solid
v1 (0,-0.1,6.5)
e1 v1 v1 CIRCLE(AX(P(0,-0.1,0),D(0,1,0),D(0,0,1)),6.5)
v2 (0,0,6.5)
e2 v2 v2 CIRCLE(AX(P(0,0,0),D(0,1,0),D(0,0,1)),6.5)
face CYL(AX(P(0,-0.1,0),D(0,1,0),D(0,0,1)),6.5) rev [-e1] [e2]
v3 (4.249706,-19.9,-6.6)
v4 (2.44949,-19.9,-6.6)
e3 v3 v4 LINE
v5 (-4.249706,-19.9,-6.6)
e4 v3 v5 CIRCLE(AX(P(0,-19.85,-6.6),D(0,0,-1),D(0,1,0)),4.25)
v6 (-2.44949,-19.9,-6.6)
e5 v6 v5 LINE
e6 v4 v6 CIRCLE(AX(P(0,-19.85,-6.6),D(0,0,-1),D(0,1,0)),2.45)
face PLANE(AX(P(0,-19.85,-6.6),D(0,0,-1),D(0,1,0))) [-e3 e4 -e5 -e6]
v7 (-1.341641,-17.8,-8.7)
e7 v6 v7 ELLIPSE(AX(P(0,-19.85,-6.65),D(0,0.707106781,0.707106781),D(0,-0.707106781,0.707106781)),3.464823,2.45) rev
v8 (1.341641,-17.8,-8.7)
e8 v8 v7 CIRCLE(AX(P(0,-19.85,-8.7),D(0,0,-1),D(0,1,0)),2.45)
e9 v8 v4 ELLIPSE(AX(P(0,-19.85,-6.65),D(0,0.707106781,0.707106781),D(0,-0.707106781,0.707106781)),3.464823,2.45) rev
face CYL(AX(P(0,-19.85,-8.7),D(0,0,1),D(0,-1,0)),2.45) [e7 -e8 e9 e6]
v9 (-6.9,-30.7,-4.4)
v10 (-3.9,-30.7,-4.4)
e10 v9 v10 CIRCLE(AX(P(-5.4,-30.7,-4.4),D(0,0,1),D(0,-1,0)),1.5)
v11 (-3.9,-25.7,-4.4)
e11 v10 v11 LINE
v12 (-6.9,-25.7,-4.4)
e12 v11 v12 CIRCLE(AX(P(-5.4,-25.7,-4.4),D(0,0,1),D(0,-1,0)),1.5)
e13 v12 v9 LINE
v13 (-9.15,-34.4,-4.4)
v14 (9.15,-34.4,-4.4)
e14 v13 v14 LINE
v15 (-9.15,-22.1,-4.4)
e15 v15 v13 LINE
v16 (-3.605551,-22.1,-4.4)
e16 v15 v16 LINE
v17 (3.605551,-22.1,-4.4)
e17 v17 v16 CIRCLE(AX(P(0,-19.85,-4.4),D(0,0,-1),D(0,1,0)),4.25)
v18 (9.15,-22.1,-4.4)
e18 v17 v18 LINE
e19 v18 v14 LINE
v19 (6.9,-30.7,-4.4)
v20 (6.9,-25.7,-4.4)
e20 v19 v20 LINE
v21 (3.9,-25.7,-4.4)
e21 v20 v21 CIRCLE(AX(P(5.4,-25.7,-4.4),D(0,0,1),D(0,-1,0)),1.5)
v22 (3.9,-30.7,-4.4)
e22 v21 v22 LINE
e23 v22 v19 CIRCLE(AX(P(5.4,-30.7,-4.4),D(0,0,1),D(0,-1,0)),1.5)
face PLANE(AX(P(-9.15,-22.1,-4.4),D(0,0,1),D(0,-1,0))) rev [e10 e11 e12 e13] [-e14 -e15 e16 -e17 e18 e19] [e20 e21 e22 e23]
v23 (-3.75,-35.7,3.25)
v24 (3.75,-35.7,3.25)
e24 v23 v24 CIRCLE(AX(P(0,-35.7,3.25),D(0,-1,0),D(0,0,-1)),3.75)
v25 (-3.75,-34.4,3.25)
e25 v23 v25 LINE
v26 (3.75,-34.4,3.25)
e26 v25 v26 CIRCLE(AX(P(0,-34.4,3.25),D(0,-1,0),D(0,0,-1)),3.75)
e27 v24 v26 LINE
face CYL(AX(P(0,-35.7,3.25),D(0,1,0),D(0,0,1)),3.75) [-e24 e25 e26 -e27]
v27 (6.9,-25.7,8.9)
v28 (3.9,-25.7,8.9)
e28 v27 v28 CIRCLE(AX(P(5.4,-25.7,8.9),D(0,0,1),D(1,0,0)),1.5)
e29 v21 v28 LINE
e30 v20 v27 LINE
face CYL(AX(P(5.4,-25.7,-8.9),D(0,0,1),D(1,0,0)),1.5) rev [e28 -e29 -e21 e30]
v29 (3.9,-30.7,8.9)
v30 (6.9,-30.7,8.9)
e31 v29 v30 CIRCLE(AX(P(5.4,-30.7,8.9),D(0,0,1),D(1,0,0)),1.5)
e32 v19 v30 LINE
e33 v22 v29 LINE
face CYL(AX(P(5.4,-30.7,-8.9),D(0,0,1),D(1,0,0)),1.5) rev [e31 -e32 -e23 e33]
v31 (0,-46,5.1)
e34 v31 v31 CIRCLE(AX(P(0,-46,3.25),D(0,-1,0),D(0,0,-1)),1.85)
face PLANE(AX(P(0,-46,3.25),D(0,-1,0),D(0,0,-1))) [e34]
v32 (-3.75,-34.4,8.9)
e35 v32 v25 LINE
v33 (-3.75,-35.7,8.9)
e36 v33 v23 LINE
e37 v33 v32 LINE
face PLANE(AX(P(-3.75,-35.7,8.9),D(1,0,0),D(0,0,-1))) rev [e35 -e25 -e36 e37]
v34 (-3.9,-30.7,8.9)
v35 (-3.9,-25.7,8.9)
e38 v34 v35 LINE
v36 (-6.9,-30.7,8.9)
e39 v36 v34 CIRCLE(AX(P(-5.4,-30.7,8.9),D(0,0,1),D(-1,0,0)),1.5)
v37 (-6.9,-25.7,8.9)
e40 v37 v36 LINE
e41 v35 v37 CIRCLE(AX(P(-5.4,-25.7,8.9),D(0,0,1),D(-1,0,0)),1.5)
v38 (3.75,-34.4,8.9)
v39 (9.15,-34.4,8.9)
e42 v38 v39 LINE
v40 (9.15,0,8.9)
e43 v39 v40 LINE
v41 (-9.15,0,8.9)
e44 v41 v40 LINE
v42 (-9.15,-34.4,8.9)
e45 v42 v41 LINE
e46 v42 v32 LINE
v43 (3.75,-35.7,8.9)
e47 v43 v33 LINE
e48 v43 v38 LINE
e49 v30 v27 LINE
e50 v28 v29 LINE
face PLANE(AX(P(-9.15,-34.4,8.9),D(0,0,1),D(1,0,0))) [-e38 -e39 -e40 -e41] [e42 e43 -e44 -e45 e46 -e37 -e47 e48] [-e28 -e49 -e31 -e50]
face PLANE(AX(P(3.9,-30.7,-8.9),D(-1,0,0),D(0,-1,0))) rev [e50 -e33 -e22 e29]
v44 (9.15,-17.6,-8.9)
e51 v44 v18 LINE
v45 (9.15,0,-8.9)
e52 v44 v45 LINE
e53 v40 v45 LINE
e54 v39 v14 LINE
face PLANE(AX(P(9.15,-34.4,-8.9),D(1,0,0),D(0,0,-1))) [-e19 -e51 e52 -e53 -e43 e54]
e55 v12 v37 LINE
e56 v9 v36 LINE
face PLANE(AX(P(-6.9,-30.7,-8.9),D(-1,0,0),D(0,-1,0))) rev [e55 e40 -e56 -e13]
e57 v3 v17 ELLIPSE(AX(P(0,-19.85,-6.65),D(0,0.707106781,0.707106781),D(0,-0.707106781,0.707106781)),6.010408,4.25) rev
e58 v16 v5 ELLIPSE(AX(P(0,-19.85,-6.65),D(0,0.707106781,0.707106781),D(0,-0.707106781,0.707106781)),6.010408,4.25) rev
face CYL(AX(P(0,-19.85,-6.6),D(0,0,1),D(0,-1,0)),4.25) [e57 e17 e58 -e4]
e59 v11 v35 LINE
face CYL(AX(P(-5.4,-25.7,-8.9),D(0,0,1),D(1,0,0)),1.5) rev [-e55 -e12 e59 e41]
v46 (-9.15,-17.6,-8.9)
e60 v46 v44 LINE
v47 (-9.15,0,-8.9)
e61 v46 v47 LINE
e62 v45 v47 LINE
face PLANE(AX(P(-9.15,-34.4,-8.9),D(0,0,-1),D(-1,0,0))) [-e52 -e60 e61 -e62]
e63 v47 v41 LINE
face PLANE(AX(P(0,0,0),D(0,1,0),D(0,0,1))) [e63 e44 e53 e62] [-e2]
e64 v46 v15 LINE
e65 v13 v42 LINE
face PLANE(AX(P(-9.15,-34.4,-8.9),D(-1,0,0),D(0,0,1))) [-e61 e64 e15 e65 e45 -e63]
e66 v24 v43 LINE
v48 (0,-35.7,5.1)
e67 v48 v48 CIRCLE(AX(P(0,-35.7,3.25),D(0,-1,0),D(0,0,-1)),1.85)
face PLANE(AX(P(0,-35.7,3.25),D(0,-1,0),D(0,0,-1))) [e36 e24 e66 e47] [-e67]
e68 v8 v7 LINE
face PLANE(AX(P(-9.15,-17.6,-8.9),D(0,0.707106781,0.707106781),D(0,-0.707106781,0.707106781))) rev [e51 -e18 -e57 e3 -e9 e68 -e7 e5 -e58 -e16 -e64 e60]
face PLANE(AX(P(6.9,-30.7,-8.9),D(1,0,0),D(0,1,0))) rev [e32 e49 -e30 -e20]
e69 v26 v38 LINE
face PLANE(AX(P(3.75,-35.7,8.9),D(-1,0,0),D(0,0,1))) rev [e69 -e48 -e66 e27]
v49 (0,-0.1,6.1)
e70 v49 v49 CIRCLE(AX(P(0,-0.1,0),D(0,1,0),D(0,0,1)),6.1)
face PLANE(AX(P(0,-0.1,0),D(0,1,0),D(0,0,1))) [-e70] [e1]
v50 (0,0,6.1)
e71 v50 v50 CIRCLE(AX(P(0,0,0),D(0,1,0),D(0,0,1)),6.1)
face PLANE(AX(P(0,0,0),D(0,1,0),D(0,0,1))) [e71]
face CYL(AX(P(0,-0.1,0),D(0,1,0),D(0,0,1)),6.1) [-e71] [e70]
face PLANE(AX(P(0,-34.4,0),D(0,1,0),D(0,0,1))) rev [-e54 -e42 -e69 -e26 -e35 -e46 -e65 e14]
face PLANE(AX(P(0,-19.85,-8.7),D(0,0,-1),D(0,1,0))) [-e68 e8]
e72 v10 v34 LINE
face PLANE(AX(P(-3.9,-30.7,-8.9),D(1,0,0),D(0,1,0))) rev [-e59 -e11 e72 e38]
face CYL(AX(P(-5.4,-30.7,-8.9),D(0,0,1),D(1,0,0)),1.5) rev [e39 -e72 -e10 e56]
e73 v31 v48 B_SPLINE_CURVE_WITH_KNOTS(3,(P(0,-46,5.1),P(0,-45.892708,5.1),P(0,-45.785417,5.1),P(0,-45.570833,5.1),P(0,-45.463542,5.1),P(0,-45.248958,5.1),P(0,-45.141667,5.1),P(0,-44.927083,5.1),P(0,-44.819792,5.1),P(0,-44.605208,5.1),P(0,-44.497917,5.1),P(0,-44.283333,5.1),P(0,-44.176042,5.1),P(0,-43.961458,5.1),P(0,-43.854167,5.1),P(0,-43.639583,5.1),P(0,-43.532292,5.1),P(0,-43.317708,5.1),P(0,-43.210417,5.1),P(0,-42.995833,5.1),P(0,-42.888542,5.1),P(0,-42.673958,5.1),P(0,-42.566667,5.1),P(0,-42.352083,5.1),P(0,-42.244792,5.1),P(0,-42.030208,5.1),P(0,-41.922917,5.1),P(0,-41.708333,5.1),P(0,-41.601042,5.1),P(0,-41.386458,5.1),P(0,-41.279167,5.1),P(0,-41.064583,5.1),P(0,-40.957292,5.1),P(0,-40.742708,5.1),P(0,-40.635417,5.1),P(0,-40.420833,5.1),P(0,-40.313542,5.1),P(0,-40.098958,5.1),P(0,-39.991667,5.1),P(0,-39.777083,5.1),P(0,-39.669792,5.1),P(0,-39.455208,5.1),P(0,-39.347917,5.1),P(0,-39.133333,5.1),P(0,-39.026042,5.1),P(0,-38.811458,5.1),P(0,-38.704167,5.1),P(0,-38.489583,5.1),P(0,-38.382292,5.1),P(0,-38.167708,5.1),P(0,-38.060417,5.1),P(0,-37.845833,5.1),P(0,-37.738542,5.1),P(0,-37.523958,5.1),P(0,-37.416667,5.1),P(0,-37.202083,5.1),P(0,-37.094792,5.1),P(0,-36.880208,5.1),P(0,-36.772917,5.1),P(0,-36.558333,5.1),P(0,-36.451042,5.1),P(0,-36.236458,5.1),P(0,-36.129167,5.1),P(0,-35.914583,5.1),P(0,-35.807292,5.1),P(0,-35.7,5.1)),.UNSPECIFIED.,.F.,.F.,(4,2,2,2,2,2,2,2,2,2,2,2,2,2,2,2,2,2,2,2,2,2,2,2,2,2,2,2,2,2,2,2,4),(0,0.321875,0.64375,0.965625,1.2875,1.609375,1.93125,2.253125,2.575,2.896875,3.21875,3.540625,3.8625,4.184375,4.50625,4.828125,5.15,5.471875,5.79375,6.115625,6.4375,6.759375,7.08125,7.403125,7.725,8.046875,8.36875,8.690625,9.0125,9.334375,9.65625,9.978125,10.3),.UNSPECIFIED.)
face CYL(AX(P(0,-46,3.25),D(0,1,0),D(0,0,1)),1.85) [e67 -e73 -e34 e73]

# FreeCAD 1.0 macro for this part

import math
import FreeCAD as App
import Part
import Sketcher
Q = App.Units.Quantity


def add_polygon(sketch, points):
    """Adds a closed chain of lines whose ends are joined by coincident constraints."""
    first, n = sketch.GeometryCount, len(points)
    for a, b in zip(points, points[1:] + points[:1]):
        sketch.addGeometry(Part.LineSegment(App.Vector(*a, 0), App.Vector(*b, 0)), False)
    for i in range(n):
        sketch.addConstraint(Sketcher.Constraint("Coincident", first + i, 2, first + (i + 1) % n, 1))

doc = App.newDocument("Part")
body = doc.addObject("PartDesign::Body", "Body")

# Sketch on XZ plane
sketch1 = body.newObject("Sketcher::SketchObject", "Sketch")
sketch1.AttachmentSupport = (doc.getObject("XZ_Plane"), [""])
sketch1.MapMode = "FlatFace"
add_polygon(sketch1, [(-9, -9), (-9, 9), (9, 9), (9, -9)])  # lines 0-3
sketch1.addConstraint([
    Sketcher.Constraint("Vertical", 0),
    Sketcher.Constraint("Horizontal", 1),
    Sketcher.Constraint("Vertical", 2),
    Sketcher.Constraint("Horizontal", 3),
    Sketcher.Constraint("Symmetric", 0, 2, 2, 2, -1, 1),
    Sketcher.Constraint("DistanceX", 1, 1, 1, 2, 18.3),
    Sketcher.Constraint("DistanceY", 0, 1, 0, 2, 17.8),
])
pad1 = body.newObject("PartDesign::Pad", "Pad")
pad1.Profile = sketch1
pad1.Length = 34.4

# Sketch on YZ plane
sketch2 = body.newObject("Sketcher::SketchObject", "Sketch001")
sketch2.AttachmentSupport = (doc.getObject("YZ_Plane"), [""])
sketch2.MapMode = "FlatFace"
add_polygon(sketch2, [(-17.6, -8.9), (-22.1, -4.4), (-34.4, -4.4), (-34.4, -8.9)])  # lines 0-3
sketch2.addConstraint([
    Sketcher.Constraint("Horizontal", 1),
    Sketcher.Constraint("Vertical", 2),
    Sketcher.Constraint("Horizontal", 3),
    Sketcher.Constraint("Angle", 0, Q("135 deg")),
    Sketcher.Constraint("DistanceX", 1, 2, 1, 1, 12.3),
    Sketcher.Constraint("DistanceX", 3, 1, 3, 2, 16.8),
    Sketcher.Constraint("DistanceX", 0, 2, -1, 1, 22.1),
    Sketcher.Constraint("DistanceY", 0, 2, -1, 1, 4.4),
])
pocket1 = body.newObject("PartDesign::Pocket", "Pocket")
pocket1.Profile = sketch2
pocket1.Type = "ThroughAll"
pocket1.Midplane = True

# Sketch on XY plane
sketch3 = body.newObject("Sketcher::SketchObject", "Sketch002")
sketch3.AttachmentSupport = (doc.getObject("XY_Plane"), [""])
sketch3.MapMode = "FlatFace"
sketch3.addGeometry([
    Part.LineSegment(App.Vector(3.9, -25.7, 0), App.Vector(3.9, -30.7, 0)),  # 0
    Part.ArcOfCircle(Part.Circle(App.Vector(5.4, -30.7, 0), App.Vector(0, 0, 1), 1.5), math.radians(180), math.radians(360)),  # 1
    Part.LineSegment(App.Vector(6.9, -30.7, 0), App.Vector(6.9, -25.7, 0)),  # 2
    Part.ArcOfCircle(Part.Circle(App.Vector(5.4, -25.7, 0), App.Vector(0, 0, 1), 1.5), math.radians(0), math.radians(180)),  # 3
    Part.LineSegment(App.Vector(-3.9, -30.7, 0), App.Vector(-3.9, -25.7, 0)),  # 4
    Part.ArcOfCircle(Part.Circle(App.Vector(-5.4, -25.7, 0), App.Vector(0, 0, 1), 1.5), math.radians(0), math.radians(180)),  # 5
    Part.LineSegment(App.Vector(-6.9, -25.7, 0), App.Vector(-6.9, -30.7, 0)),  # 6
    Part.ArcOfCircle(Part.Circle(App.Vector(-5.4, -30.7, 0), App.Vector(0, 0, 1), 1.5), math.radians(180), math.radians(360)),  # 7
], False)
sketch3.addConstraint([
    Sketcher.Constraint("Tangent", 0, 2, 1, 1),
    Sketcher.Constraint("Tangent", 1, 2, 2, 1),
    Sketcher.Constraint("Tangent", 2, 2, 3, 1),
    Sketcher.Constraint("Tangent", 3, 2, 0, 1),
    Sketcher.Constraint("Tangent", 4, 2, 5, 1),
    Sketcher.Constraint("Tangent", 5, 2, 6, 1),
    Sketcher.Constraint("Tangent", 6, 2, 7, 1),
    Sketcher.Constraint("Tangent", 7, 2, 4, 1),
    Sketcher.Constraint("Vertical", 0),
    Sketcher.Constraint("Vertical", 2),
    Sketcher.Constraint("Vertical", 4),
    Sketcher.Constraint("Vertical", 6),
    Sketcher.Constraint("Equal", 3, 5),
    Sketcher.Constraint("Symmetric", 3, 3, 5, 3, -2),
    Sketcher.Constraint("Horizontal", 1, 3, 7, 3),
    Sketcher.Constraint("Radius", 1, 1.5),
    Sketcher.Constraint("DistanceY", 0, 2, 0, 1, 5.0),
    Sketcher.Constraint("DistanceX", -1, 1, 1, 3, 5.4),
    Sketcher.Constraint("DistanceY", 1, 3, -1, 1, 30.7),
])
pocket2 = body.newObject("PartDesign::Pocket", "Pocket001")
pocket2.Profile = sketch3
pocket2.Type = "ThroughAll"
pocket2.Midplane = True

# Sketch on XY plane
sketch4 = body.newObject("Sketcher::SketchObject", "Sketch003")
sketch4.AttachmentSupport = (doc.getObject("XY_Plane"), [""])
sketch4.MapMode = "FlatFace"
sketch4.AttachmentOffset = App.Placement(App.Vector(0, 0, -4.4), App.Rotation())
sketch4.addGeometry(Part.Circle(App.Vector(0, -19.9, 0), App.Vector(0, 0, 1), 4.2), False)
sketch4.addConstraint([
    Sketcher.Constraint("PointOnObject", 0, 3, -2),
    Sketcher.Constraint("Diameter", 0, 8.5),
    Sketcher.Constraint("DistanceY", 0, 3, -1, 1, 19.85),
])
pad2 = body.newObject("PartDesign::Pad", "Pad001")
pad2.Profile = sketch4
pad2.Length = 2.2
pad2.Reversed = True

# Sketch on XY plane
sketch5 = body.newObject("Sketcher::SketchObject", "Sketch004")
sketch5.AttachmentSupport = (doc.getObject("XY_Plane"), [""])
sketch5.MapMode = "FlatFace"
sketch5.AttachmentOffset = App.Placement(App.Vector(0, 0, -6.6), App.Rotation())
sketch5.addGeometry(Part.Circle(App.Vector(0, -19.9, 0), App.Vector(0, 0, 1), 2.5), False)
sketch5.addConstraint([
    Sketcher.Constraint("PointOnObject", 0, 3, -2),
    Sketcher.Constraint("Diameter", 0, 4.9),
    Sketcher.Constraint("DistanceY", 0, 3, -1, 1, 19.85),
])
pad3 = body.newObject("PartDesign::Pad", "Pad002")
pad3.Profile = sketch5
pad3.Length = 2.1
pad3.Reversed = True

# Sketch on XZ plane
sketch6 = body.newObject("Sketcher::SketchObject", "Sketch005")
sketch6.AttachmentSupport = (doc.getObject("XZ_Plane"), [""])
sketch6.MapMode = "FlatFace"
sketch6.AttachmentOffset = App.Placement(App.Vector(0, 0, 34.4), App.Rotation())
sketch6.addGeometry([
    Part.LineSegment(App.Vector(3.8, 3.2, 0), App.Vector(3.8, 8.9, 0)),
    Part.LineSegment(App.Vector(3.8, 8.9, 0), App.Vector(-3.8, 8.9, 0)),
    Part.LineSegment(App.Vector(-3.8, 8.9, 0), App.Vector(-3.8, 3.2, 0)),
    Part.ArcOfCircle(Part.Circle(App.Vector(0, 3.2, 0), App.Vector(0, 0, 1), 3.8), math.radians(180), math.radians(360)),
], False)
sketch6.addConstraint([
    Sketcher.Constraint("Coincident", 0, 2, 1, 1),
    Sketcher.Constraint("Coincident", 1, 2, 2, 1),
    Sketcher.Constraint("Tangent", 2, 2, 3, 1),
    Sketcher.Constraint("Tangent", 3, 2, 0, 1),
    Sketcher.Constraint("Vertical", 0),
    Sketcher.Constraint("Horizontal", 1),
    Sketcher.Constraint("Vertical", 2),
    Sketcher.Constraint("PointOnObject", 3, 3, -2),
    Sketcher.Constraint("Radius", 3, 3.75),
    Sketcher.Constraint("DistanceY", 0, 1, 0, 2, 5.65),
    Sketcher.Constraint("DistanceY", -1, 1, 0, 2, 8.9),
])
pad4 = body.newObject("PartDesign::Pad", "Pad003")
pad4.Profile = sketch6
pad4.Length = 1.3

# Sketch on XZ plane
sketch7 = body.newObject("Sketcher::SketchObject", "Sketch006")
sketch7.AttachmentSupport = (doc.getObject("XZ_Plane"), [""])
sketch7.MapMode = "FlatFace"
sketch7.AttachmentOffset = App.Placement(App.Vector(0, 0, 35.7), App.Rotation())
sketch7.addGeometry(Part.Circle(App.Vector(0, 3.2, 0), App.Vector(0, 0, 1), 1.9), False)
sketch7.addConstraint([
    Sketcher.Constraint("PointOnObject", 0, 3, -2),
    Sketcher.Constraint("Diameter", 0, 3.7),
    Sketcher.Constraint("DistanceY", -1, 1, 0, 3, 3.25),
])
pad5 = body.newObject("PartDesign::Pad", "Pad004")
pad5.Profile = sketch7
pad5.Length = 10.3

# Sketch on XZ plane
sketch8 = body.newObject("Sketcher::SketchObject", "Sketch007")
sketch8.AttachmentSupport = (doc.getObject("XZ_Plane"), [""])
sketch8.MapMode = "FlatFace"
sketch8.addGeometry([
    Part.Circle(App.Vector(0, 0, 0), App.Vector(0, 0, 1), 6),
    Part.Circle(App.Vector(0, 0, 0), App.Vector(0, 0, 1), 6),
], False)
sketch8.addConstraint([
    Sketcher.Constraint("Coincident", 0, 3, -1, 1),
    Sketcher.Constraint("Coincident", 1, 3, -1, 1),
    Sketcher.Constraint("Diameter", 0, 13.0),
    Sketcher.Constraint("Diameter", 1, 12.2),
])
pocket3 = body.newObject("PartDesign::Pocket", "Pocket002")
pocket3.Profile = sketch8
pocket3.Length = 0.1
pocket3.Reversed = True

doc.recompute()
